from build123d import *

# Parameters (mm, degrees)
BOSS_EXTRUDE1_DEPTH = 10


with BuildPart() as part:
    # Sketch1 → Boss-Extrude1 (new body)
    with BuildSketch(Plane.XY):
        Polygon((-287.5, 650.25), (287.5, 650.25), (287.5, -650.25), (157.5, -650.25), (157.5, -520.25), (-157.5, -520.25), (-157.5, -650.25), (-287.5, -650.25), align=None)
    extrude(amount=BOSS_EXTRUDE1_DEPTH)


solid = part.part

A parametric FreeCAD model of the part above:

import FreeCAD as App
import Part
import Sketcher
from FreeCAD import Vector
Q = App.Units.Quantity

doc = App.newDocument("Part")
body = doc.addObject("PartDesign::Body", "Body")

sketch1 = body.newObject("Sketcher::SketchObject", "Sketch")
sketch1.AttachmentSupport = (doc.getObject("XY_Plane"), [""])
sketch1.MapMode = "FlatFace"
sketch1.addGeometry(Part.LineSegment(Vector(287.5, 650.25, 0), Vector(-287.5, 650.25, 0)), False)
sketch1.addGeometry(Part.LineSegment(Vector(-287.5, 650.25, 0), Vector(-287.5, -650.25, 0)), False)
sketch1.addGeometry(Part.LineSegment(Vector(-287.5, -650.25, 0), Vector(-157.5, -650.25, 0)), False)
sketch1.addGeometry(Part.LineSegment(Vector(-157.5, -650.25, 0), Vector(-157.5, -520.25, 0)), False)
sketch1.addGeometry(Part.LineSegment(Vector(-157.5, -520.25, 0), Vector(157.5, -520.25, 0)), False)
sketch1.addGeometry(Part.LineSegment(Vector(157.5, -520.25, 0), Vector(157.5, -650.25, 0)), False)
sketch1.addGeometry(Part.LineSegment(Vector(157.5, -650.25, 0), Vector(287.5, -650.25, 0)), False)
sketch1.addGeometry(Part.LineSegment(Vector(287.5, -650.25, 0), Vector(287.5, 650.25, 0)), False)
sketch1.addConstraint(Sketcher.Constraint("Coincident", 0, 2, 1, 1))
sketch1.addConstraint(Sketcher.Constraint("Coincident", 1, 2, 2, 1))
sketch1.addConstraint(Sketcher.Constraint("Coincident", 2, 2, 3, 1))
sketch1.addConstraint(Sketcher.Constraint("Coincident", 3, 2, 4, 1))
sketch1.addConstraint(Sketcher.Constraint("Coincident", 4, 2, 5, 1))
sketch1.addConstraint(Sketcher.Constraint("Coincident", 5, 2, 6, 1))
sketch1.addConstraint(Sketcher.Constraint("Coincident", 6, 2, 7, 1))
sketch1.addConstraint(Sketcher.Constraint("Coincident", 7, 2, 0, 1))
sketch1.addConstraint(Sketcher.Constraint("Horizontal", 0))
sketch1.addConstraint(Sketcher.Constraint("Vertical", 1))
sketch1.addConstraint(Sketcher.Constraint("Horizontal", 2))
sketch1.addConstraint(Sketcher.Constraint("Vertical", 3))
sketch1.addConstraint(Sketcher.Constraint("Horizontal", 4))
sketch1.addConstraint(Sketcher.Constraint("Vertical", 5))
sketch1.addConstraint(Sketcher.Constraint("Horizontal", 6))
sketch1.addConstraint(Sketcher.Constraint("Vertical", 7))
sketch1.addConstraint(Sketcher.Constraint("Symmetric", 0, 2, 6, 2, -1, 1))
sketch1.addConstraint(Sketcher.Constraint("Symmetric", 2, 2, 5, 2, -2))
sketch1.addConstraint(Sketcher.Constraint("Equal", 6, 3))
sketch1.addConstraint(Sketcher.Constraint("DistanceX", 0, 2, 0, 1, Q("575 mm")))
sketch1.addConstraint(Sketcher.Constraint("DistanceX", 2, 1, 2, 2, Q("130 mm")))
sketch1.addConstraint(Sketcher.Constraint("DistanceY", 1, 2, 1, 1, Q("1300.5 mm")))
pad1 = body.newObject("PartDesign::Pad", "Pad")
pad1.Profile = sketch1
pad1.Length = 10

doc.recompute()
